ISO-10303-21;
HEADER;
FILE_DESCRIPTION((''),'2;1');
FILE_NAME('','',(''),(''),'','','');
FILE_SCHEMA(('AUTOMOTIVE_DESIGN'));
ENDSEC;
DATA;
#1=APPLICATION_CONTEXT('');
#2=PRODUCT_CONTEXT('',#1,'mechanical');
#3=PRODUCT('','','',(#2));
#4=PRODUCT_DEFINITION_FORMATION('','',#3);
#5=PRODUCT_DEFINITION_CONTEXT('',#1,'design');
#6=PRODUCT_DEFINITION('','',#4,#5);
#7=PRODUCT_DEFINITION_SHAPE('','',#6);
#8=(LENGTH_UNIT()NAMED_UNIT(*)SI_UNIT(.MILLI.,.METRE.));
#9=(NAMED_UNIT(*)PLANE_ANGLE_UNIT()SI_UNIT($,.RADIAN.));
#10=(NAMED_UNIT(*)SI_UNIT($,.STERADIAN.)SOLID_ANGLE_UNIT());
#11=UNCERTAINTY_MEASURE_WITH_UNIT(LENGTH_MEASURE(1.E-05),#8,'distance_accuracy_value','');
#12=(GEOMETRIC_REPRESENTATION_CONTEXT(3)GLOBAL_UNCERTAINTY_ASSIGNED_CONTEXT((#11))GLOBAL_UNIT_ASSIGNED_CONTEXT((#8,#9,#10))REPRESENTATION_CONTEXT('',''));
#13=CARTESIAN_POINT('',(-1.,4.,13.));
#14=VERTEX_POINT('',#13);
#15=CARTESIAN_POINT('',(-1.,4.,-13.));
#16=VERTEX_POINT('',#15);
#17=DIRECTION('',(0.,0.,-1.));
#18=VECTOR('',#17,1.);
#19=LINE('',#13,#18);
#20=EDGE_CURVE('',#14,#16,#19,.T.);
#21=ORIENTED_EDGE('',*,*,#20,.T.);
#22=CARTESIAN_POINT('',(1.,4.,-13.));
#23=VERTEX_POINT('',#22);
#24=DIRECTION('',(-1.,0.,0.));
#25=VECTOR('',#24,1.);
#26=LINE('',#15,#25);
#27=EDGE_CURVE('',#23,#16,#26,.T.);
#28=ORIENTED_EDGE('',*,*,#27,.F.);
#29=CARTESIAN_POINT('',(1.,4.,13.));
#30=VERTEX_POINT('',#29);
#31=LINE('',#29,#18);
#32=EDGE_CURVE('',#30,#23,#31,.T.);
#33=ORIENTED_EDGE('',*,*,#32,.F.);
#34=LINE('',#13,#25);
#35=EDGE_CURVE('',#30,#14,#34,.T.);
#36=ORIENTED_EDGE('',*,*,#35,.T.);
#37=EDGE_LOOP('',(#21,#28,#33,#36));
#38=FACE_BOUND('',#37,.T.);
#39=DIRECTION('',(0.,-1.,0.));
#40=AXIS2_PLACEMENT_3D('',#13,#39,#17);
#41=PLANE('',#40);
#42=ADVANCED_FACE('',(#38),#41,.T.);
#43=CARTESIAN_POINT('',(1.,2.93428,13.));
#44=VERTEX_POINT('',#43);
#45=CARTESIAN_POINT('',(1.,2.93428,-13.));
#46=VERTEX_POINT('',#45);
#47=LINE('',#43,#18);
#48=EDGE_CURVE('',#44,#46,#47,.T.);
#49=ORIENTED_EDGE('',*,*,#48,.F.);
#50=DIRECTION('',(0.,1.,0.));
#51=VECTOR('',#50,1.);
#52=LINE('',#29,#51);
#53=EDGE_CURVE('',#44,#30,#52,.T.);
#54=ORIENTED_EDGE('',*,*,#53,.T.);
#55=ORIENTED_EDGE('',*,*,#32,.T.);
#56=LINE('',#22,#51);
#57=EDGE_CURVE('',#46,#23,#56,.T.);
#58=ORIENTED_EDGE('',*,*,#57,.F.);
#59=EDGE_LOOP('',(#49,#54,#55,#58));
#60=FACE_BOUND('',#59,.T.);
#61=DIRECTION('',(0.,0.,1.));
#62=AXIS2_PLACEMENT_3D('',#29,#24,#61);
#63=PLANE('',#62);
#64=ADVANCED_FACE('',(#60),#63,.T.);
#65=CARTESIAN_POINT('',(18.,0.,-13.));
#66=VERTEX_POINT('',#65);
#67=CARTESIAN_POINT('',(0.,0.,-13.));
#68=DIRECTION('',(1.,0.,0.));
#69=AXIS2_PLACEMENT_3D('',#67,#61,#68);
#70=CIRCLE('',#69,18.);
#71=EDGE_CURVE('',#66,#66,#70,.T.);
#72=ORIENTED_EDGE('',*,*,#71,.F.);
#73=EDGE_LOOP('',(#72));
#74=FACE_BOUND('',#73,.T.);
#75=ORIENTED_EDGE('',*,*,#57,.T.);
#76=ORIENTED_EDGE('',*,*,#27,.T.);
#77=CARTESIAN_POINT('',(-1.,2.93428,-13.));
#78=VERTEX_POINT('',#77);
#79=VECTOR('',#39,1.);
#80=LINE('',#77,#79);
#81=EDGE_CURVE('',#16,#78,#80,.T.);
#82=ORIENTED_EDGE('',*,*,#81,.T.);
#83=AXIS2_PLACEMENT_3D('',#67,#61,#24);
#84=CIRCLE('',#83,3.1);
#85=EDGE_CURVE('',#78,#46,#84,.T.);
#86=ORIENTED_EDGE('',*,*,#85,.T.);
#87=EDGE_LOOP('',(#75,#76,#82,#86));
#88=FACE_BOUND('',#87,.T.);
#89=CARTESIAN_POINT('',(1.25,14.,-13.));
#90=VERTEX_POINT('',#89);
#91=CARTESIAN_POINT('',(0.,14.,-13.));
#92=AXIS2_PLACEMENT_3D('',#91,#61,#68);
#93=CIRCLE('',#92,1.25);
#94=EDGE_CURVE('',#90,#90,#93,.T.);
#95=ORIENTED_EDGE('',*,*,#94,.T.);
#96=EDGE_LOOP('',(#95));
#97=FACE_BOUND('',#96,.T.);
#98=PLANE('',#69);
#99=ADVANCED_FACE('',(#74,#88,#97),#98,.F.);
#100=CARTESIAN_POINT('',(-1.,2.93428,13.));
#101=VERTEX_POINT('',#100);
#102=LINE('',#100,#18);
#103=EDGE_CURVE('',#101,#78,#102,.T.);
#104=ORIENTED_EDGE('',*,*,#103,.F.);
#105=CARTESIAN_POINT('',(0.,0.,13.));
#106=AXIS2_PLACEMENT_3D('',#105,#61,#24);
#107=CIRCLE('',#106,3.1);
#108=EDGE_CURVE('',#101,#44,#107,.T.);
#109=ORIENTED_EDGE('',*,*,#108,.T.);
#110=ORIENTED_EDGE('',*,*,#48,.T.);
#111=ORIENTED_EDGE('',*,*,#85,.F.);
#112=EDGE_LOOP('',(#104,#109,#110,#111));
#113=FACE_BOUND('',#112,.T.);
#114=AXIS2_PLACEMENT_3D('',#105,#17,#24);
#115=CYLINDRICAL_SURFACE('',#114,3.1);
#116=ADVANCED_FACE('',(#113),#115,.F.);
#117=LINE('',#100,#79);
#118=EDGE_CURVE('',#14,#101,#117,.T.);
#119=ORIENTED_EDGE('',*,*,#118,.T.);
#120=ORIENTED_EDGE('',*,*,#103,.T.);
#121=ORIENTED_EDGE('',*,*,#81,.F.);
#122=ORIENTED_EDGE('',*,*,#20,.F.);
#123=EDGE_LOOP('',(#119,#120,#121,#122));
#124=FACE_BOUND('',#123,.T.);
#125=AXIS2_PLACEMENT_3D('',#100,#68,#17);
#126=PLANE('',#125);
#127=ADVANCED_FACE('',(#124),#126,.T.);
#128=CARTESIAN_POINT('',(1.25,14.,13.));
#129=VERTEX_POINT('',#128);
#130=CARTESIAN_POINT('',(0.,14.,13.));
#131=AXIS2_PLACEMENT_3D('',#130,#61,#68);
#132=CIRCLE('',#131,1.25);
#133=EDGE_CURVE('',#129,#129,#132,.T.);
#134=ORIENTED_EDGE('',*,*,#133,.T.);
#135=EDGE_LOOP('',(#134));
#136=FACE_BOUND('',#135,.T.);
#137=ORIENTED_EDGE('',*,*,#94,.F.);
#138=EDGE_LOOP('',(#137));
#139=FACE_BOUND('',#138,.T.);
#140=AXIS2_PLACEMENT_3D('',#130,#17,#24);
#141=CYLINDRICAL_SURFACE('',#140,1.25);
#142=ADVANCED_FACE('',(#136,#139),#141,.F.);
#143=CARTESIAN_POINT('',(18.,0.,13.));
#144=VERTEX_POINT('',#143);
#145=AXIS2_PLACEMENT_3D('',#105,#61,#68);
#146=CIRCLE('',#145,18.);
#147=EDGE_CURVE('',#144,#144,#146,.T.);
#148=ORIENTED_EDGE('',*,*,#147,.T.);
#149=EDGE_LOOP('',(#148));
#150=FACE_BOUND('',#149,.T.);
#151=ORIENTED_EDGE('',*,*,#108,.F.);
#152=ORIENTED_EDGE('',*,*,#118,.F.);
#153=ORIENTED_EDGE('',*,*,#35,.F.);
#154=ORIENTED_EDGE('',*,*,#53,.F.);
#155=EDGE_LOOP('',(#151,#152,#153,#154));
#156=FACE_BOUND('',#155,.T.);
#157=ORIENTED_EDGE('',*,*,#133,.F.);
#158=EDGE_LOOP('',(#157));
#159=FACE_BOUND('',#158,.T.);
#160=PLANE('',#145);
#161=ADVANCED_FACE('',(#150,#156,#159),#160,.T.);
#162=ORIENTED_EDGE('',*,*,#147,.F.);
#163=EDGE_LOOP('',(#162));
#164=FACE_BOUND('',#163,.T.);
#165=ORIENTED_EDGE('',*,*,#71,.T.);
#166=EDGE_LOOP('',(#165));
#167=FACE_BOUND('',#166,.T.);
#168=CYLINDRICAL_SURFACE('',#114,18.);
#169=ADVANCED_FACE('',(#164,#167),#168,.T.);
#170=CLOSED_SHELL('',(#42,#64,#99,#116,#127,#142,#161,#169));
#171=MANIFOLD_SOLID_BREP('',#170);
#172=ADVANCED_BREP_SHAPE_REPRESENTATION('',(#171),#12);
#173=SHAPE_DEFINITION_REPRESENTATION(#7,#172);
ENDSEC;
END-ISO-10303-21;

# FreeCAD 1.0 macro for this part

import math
import FreeCAD as App
import Part
import Sketcher
Q = App.Units.Quantity

doc = App.newDocument("Part")
params = doc.addObject("Spreadsheet::Sheet", "Params")
for row, (alias, value) in enumerate([
    ("sketch1_diameter", "36 mm"),
    ("sketch1_diameter2", "2.5 mm"),
    ("sketch1_radius", "3.1 mm"),
    ("sketch1_width", "2 mm"),
    ("pad1_length", "26 mm"),
], start=1):
    params.set(f"A{row}", alias)
    params.set(f"B{row}", "=" + value)
    params.setAlias(f"B{row}", alias)

body = doc.addObject("PartDesign::Body", "Body")

sketch1 = body.newObject("Sketcher::SketchObject", "Sketch")
sketch1.AttachmentSupport = (doc.getObject("XY_Plane"), [""])
sketch1.MapMode = "FlatFace"
sketch1.addGeometry([
    Part.Circle(App.Vector(0, 0, 0), App.Vector(0, 0, 1), 18),
    Part.ArcOfCircle(Part.Circle(App.Vector(0, 0, 0), App.Vector(0, 0, 1), 3.1), math.radians(109), math.radians(431)),
    Part.LineSegment(App.Vector(-1, 2.9, 0), App.Vector(-1, 4, 0)),
    Part.LineSegment(App.Vector(-1, 4, 0), App.Vector(1, 4, 0)),
    Part.LineSegment(App.Vector(1, 4, 0), App.Vector(1, 2.9, 0)),
    Part.Circle(App.Vector(0, 14, 0), App.Vector(0, 0, 1), 1.2),
], False)
sketch1.addConstraint([
    Sketcher.Constraint("Coincident", 1, 1, 2, 1),
    Sketcher.Constraint("Coincident", 2, 2, 3, 1),
    Sketcher.Constraint("Coincident", 3, 2, 4, 1),
    Sketcher.Constraint("Coincident", 4, 2, 1, 2),
    Sketcher.Constraint("Vertical", 2),
    Sketcher.Constraint("Horizontal", 3),
    Sketcher.Constraint("Vertical", 4),
    Sketcher.Constraint("Coincident", 0, 3, -1, 1),
    Sketcher.Constraint("Coincident", 1, 3, -1, 1),
    Sketcher.Constraint("PointOnObject", 5, 3, -2),
    Sketcher.Constraint("Horizontal", 1, 1, 4, 2),
    Sketcher.Constraint("Diameter", 0, Q("36 mm")),
    Sketcher.Constraint("Diameter", 5, Q("2.5 mm")),
    Sketcher.Constraint("Radius", 1, Q("3.1 mm")),
    Sketcher.Constraint("DistanceX", 3, 1, 3, 2, Q("2 mm")),
    Sketcher.Constraint("DistanceY", -1, 1, 5, 3, Q("14 mm")),
    Sketcher.Constraint("DistanceY", -1, 1, 2, 2, Q("4 mm")),
])
sketch1.setExpression("Constraints[11]", "Params.sketch1_diameter")
sketch1.setExpression("Constraints[12]", "Params.sketch1_diameter2")
sketch1.setExpression("Constraints[13]", "Params.sketch1_radius")
sketch1.setExpression("Constraints[14]", "Params.sketch1_width")
pad1 = body.newObject("PartDesign::Pad", "Pad")
pad1.Profile = sketch1
pad1.setExpression("Length", "Params.pad1_length")
pad1.Midplane = True

doc.recompute()
